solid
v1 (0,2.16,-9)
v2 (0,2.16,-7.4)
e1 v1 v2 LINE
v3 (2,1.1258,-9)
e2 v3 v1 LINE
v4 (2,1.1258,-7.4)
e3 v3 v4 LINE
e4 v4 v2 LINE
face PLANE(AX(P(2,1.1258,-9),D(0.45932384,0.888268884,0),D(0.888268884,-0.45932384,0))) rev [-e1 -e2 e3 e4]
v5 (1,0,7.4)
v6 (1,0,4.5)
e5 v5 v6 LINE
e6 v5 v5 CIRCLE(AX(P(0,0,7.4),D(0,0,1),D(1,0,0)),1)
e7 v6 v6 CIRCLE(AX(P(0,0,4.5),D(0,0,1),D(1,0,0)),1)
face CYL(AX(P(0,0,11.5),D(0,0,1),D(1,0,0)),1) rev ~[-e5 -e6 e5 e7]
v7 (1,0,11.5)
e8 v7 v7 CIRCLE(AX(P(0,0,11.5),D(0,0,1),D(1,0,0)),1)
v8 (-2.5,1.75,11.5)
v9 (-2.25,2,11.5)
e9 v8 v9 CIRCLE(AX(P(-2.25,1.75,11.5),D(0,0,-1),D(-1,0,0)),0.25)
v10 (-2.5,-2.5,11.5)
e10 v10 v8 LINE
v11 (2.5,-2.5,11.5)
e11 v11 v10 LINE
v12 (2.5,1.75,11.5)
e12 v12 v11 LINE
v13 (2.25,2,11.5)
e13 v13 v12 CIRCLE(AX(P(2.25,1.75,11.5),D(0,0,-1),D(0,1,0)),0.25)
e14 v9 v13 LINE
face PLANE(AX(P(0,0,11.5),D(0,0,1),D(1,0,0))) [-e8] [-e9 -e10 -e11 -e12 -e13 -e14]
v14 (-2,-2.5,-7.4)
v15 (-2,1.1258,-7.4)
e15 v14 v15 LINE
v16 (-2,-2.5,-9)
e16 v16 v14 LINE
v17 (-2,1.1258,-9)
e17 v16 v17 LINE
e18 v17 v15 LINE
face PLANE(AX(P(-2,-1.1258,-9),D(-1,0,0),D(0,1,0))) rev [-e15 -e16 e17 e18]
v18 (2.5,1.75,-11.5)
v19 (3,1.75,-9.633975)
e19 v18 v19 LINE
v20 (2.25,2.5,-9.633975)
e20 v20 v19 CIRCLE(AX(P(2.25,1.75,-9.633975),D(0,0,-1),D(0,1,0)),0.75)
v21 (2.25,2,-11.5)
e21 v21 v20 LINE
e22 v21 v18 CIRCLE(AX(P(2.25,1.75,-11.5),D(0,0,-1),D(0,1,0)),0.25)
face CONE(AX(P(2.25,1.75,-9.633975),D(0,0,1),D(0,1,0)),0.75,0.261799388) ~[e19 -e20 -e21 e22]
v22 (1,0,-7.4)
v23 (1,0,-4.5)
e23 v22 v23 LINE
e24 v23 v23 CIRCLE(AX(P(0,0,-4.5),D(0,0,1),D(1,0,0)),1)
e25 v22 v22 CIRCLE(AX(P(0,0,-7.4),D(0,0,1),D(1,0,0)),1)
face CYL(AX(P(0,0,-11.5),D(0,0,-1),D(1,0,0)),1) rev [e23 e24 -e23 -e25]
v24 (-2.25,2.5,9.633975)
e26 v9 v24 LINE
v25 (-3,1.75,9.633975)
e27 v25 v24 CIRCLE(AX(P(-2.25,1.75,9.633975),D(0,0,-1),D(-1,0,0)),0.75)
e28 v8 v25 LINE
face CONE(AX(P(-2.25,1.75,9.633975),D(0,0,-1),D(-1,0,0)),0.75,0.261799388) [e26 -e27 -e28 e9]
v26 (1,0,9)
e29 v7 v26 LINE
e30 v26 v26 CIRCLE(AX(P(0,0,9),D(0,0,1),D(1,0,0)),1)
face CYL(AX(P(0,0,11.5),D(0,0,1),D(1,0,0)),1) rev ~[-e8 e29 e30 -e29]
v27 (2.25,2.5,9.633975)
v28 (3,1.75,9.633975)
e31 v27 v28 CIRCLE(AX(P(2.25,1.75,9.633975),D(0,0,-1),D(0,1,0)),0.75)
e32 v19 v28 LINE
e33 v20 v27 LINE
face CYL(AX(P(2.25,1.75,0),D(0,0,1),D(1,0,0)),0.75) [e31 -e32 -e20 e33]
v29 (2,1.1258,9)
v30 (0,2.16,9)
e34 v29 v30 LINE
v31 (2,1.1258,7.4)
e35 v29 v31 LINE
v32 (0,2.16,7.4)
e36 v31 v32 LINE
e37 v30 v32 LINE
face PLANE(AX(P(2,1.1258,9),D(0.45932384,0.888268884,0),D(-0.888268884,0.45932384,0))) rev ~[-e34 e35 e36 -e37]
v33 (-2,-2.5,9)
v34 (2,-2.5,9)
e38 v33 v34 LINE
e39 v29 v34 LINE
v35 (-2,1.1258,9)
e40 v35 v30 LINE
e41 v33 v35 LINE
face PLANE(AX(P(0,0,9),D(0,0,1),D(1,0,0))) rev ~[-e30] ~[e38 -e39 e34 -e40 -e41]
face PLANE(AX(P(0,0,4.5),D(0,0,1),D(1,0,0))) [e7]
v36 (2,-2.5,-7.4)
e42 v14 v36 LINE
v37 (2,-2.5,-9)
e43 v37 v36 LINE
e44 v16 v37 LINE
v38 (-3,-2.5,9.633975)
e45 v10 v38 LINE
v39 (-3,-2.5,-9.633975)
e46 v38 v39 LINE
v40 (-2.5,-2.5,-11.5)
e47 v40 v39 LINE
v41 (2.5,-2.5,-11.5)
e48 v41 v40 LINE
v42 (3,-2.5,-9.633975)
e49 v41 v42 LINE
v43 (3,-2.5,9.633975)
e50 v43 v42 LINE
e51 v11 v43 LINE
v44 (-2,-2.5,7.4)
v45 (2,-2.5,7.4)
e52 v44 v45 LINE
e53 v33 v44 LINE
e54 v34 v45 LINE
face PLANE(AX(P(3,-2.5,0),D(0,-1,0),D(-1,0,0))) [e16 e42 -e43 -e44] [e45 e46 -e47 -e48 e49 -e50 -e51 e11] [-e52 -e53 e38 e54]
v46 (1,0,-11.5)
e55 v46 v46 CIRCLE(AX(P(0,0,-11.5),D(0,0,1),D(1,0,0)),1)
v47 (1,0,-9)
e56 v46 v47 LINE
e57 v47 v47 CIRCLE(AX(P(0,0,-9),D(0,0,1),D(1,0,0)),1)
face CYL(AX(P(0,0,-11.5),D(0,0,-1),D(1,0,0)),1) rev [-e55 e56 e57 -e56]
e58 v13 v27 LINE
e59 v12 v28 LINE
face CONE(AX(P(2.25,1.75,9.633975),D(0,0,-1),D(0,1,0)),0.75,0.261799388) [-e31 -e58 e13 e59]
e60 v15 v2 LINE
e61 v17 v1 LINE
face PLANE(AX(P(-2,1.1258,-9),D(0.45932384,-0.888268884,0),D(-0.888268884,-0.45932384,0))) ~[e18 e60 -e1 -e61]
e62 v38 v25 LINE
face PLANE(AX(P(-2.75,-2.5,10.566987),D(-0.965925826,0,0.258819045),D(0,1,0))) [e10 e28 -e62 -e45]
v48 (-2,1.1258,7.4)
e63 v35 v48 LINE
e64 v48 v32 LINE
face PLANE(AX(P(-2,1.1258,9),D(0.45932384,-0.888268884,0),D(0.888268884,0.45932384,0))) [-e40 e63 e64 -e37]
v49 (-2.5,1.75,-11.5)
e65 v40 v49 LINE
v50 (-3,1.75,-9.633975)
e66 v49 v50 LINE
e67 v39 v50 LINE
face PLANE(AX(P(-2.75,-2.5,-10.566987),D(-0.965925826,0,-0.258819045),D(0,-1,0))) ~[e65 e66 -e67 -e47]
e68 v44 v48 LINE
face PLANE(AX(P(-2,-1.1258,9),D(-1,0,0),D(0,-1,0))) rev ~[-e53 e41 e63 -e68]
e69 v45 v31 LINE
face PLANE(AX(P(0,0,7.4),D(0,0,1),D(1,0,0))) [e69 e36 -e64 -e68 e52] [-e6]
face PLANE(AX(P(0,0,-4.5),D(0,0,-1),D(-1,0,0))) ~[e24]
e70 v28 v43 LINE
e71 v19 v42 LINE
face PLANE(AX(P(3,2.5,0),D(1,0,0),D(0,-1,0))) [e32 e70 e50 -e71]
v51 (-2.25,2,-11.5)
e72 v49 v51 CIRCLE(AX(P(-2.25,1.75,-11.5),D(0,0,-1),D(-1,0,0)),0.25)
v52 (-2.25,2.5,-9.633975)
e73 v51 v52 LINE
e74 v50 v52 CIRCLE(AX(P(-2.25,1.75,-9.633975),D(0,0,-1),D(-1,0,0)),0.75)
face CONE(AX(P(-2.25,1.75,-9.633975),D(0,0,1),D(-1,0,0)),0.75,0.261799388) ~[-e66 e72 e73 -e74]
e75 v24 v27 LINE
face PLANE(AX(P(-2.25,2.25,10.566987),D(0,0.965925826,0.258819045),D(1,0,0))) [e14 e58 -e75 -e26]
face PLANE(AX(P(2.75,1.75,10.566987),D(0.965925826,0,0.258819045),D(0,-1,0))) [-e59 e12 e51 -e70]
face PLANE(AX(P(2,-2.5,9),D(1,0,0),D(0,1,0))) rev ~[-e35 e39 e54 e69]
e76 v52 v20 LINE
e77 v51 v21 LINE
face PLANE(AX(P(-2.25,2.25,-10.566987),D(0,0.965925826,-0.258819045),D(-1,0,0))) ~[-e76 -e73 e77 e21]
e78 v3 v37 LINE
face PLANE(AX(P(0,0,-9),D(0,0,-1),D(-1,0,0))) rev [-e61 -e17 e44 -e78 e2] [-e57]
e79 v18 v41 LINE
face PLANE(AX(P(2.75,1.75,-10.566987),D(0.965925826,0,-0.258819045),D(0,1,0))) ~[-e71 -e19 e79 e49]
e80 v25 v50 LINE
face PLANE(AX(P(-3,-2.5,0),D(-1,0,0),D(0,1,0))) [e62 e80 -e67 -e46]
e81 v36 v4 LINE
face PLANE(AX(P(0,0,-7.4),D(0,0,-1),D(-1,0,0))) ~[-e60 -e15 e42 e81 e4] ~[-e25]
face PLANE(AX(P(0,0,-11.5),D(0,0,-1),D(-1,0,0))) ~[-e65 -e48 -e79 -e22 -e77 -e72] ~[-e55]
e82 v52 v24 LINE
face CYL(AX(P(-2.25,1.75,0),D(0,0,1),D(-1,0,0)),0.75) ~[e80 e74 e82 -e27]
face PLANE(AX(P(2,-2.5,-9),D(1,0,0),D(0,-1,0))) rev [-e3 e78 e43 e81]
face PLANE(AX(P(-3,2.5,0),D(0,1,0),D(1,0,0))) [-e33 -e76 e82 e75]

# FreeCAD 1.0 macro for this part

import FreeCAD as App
import Part
import Sketcher


def edges_at(feature, points):
    """Names of the edges that pass closest to the given points."""
    edges = feature.Shape.Edges
    near = lambda p: min(range(len(edges)), key=lambda i: edges[i].distToShape(Part.Vertex(*p))[0])
    return sorted({f"Edge{near(p) + 1}" for p in points})


def add_polygon(sketch, points):
    """Adds a closed chain of lines whose ends are joined by coincident constraints."""
    first, n = sketch.GeometryCount, len(points)
    for a, b in zip(points, points[1:] + points[:1]):
        sketch.addGeometry(Part.LineSegment(App.Vector(*a, 0), App.Vector(*b, 0)), False)
    for i in range(n):
        sketch.addConstraint(Sketcher.Constraint("Coincident", first + i, 2, first + (i + 1) % n, 1))

doc = App.newDocument("Part")
body = doc.addObject("PartDesign::Body", "Body")

# Sketch on XY plane
sketch1 = body.newObject("Sketcher::SketchObject", "Sketch")
sketch1.AttachmentSupport = (doc.getObject("XY_Plane"), [""])
sketch1.MapMode = "FlatFace"
add_polygon(sketch1, [(-3, -2.5), (3, -2.5), (3, 2.5), (-3, 2.5)])  # lines 0-3
sketch1.addConstraint([
    Sketcher.Constraint("Horizontal", 0),
    Sketcher.Constraint("Vertical", 1),
    Sketcher.Constraint("Horizontal", 2),
    Sketcher.Constraint("Vertical", 3),
    Sketcher.Constraint("Symmetric", 0, 2, 2, 2, -1, 1),
    Sketcher.Constraint("DistanceX", 0, 1, 0, 2, 6.0),
    Sketcher.Constraint("DistanceY", 1, 1, 1, 2, 5.0),
])
pad1 = body.newObject("PartDesign::Pad", "Pad")
pad1.Profile = sketch1
pad1.Length = 11.5

# Sketch on XY plane
sketch2 = body.newObject("Sketcher::SketchObject", "Sketch001")
sketch2.AttachmentSupport = (doc.getObject("XY_Plane"), [""])
sketch2.MapMode = "FlatFace"
sketch2.AttachmentOffset = App.Placement(App.Vector(0, 0, 11.5), App.Rotation())
sketch2.addGeometry(Part.Circle(App.Vector(0, 0, 0), App.Vector(0, 0, 1), 1), False)
sketch2.addConstraint([
    Sketcher.Constraint("Coincident", 0, 3, -1, 1),
    Sketcher.Constraint("Diameter", 0, 2.0),
])
pocket1 = body.newObject("PartDesign::Pocket", "Pocket")
pocket1.Profile = sketch2
pocket1.Length = 7

# Sketch on XY plane
sketch3 = body.newObject("Sketcher::SketchObject", "Sketch002")
sketch3.AttachmentSupport = (doc.getObject("XY_Plane"), [""])
sketch3.MapMode = "FlatFace"
sketch3.AttachmentOffset = App.Placement(App.Vector(0, 0, 9), App.Rotation())
add_polygon(sketch3, [(2, -2.5), (2, 1.1258), (0, 2.16), (-2, 1.1258), (-2, -2.5)])  # lines 0-4
sketch3.addConstraint([
    Sketcher.Constraint("Vertical", 0),
    Sketcher.Constraint("Vertical", 3),
    Sketcher.Constraint("Horizontal", 4),
    Sketcher.Constraint("Symmetric", 0, 2, 2, 2, -2),
    Sketcher.Constraint("PointOnObject", 1, 2, -2),
    Sketcher.Constraint("DistanceX", 4, 1, 4, 2, 4.0),
    Sketcher.Constraint("DistanceY", 3, 2, -1, 1, 2.5),
    Sketcher.Constraint("DistanceY", -1, 1, 1, 2, 2.16),
    Sketcher.Constraint("DistanceY", 0, 1, 0, 2, 3.6258),
])
pocket2 = body.newObject("PartDesign::Pocket", "Pocket001")
pocket2.Profile = sketch3
pocket2.Length = 1.6
doc.recompute()

fillet = body.newObject("PartDesign::Fillet", "Fillet")
fillet.Base = (pocket2, edges_at(pocket2, [(-3, 2.5, 5.75), (3, 2.5, 5.75)]))
fillet.Radius = 0.75
doc.recompute()

chamfer = body.newObject("PartDesign::Chamfer", "Chamfer")
chamfer.Base = (fillet, edges_at(fillet, [(3, -0.375, 11.5), (-3, -0.375, 11.5)]))
chamfer.ChamferType = "Distance and Angle"
chamfer.Size = 0.5
chamfer.Angle = 75
doc.recompute()

mirrored = body.newObject("PartDesign::Mirrored", "Mirrored")
mirrored.TransformMode = "Transform body"
mirrored.MirrorPlane = (doc.getObject("XY_Plane"), [""])
body.Tip = mirrored

doc.recompute()
